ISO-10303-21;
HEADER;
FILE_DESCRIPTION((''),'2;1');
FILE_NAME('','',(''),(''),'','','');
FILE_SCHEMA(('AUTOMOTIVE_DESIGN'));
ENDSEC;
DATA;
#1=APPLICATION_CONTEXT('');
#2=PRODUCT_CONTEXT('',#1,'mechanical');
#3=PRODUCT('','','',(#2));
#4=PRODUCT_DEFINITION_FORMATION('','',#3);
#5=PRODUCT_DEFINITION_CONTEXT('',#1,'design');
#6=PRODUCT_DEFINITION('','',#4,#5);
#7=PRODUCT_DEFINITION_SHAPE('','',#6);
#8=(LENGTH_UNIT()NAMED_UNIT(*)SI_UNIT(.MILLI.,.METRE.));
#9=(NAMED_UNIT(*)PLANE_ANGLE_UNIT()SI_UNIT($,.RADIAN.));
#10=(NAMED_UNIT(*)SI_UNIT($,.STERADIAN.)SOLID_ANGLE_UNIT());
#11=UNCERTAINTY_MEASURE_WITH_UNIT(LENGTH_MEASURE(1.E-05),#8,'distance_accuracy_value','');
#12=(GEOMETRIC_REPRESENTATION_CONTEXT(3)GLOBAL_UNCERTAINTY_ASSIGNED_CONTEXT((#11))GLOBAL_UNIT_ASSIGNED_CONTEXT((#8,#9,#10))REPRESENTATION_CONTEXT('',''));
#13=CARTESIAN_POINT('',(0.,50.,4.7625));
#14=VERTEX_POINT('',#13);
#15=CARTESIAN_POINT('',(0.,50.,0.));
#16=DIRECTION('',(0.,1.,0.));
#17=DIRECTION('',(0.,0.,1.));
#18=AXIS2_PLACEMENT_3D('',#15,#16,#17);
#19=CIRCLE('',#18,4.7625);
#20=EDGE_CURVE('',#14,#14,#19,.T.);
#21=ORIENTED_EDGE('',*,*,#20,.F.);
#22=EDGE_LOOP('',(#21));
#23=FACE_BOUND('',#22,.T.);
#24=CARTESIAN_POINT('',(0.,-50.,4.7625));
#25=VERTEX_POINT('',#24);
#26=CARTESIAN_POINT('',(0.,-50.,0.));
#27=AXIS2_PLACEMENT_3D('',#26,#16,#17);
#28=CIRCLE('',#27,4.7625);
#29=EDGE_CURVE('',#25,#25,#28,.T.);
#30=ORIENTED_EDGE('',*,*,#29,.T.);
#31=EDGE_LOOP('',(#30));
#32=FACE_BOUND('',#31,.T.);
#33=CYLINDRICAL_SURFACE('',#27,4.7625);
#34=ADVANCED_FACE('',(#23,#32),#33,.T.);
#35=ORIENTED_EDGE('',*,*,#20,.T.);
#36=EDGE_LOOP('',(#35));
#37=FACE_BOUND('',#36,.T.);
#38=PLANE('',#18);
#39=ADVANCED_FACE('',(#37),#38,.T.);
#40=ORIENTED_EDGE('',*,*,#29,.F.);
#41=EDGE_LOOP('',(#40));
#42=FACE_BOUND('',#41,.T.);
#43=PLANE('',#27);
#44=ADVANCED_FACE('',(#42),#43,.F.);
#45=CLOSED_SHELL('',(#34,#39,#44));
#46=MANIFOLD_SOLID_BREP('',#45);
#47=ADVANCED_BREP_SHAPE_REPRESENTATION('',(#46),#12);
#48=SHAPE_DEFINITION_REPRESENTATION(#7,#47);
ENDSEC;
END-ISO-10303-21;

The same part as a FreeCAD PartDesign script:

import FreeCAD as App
import Part
import Sketcher

doc = App.newDocument("Part")
body = doc.addObject("PartDesign::Body", "Body")

sketch1 = body.newObject("Sketcher::SketchObject", "Sketch")
sketch1.AttachmentSupport = (doc.getObject("XZ_Plane"), [""])
sketch1.MapMode = "FlatFace"
sketch1.addGeometry(Part.Circle(App.Vector(0, 0, 0), App.Vector(0, 0, 1), 4.7625), False)
sketch1.addConstraint(Sketcher.Constraint("Coincident", 0, 3, -1, 1))
sketch1.addConstraint(Sketcher.Constraint("Diameter", 0, 9.525))
pad1 = body.newObject("PartDesign::Pad", "Pad")
pad1.Profile = sketch1
pad1.Type = "TwoLengths"
pad1.Length = 50
pad1.Length2 = 50
pad1.Reversed = True

doc.recompute()
